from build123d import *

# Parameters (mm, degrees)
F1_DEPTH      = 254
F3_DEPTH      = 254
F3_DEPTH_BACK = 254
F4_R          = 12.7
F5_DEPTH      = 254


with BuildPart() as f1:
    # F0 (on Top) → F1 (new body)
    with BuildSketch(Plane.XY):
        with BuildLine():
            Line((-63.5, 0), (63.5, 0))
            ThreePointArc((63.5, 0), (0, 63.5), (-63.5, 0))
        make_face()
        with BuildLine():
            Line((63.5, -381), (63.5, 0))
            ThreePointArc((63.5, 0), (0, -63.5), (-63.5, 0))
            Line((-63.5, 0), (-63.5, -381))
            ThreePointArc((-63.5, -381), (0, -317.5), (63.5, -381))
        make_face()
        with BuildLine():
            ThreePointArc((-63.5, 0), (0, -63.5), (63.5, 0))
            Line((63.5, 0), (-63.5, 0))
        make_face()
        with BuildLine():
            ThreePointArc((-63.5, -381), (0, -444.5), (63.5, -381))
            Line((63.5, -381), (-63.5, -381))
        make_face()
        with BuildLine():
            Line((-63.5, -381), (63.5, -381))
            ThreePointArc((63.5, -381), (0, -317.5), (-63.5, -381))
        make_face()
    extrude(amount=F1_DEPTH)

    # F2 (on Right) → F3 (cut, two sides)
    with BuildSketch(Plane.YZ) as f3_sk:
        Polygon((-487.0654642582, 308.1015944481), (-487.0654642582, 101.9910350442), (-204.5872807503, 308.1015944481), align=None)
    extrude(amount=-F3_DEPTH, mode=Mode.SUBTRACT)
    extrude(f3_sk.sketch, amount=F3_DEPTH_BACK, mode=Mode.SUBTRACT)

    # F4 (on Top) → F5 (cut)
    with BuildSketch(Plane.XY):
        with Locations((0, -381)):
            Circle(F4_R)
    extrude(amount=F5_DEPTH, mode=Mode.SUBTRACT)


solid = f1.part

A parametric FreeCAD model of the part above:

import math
import FreeCAD as App
import Part
import Sketcher
from FreeCAD import Vector
Q = App.Units.Quantity


def add_polygon(sketch, points):
    """Adds a closed chain of lines whose ends are joined by coincident constraints."""
    first, n = sketch.GeometryCount, len(points)
    for a, b in zip(points, points[1:] + points[:1]):
        sketch.addGeometry(Part.LineSegment(App.Vector(*a, 0), App.Vector(*b, 0)), False)
    for i in range(n):
        sketch.addConstraint(Sketcher.Constraint("Coincident", first + i, 2, first + (i + 1) % n, 1))

doc = App.newDocument("Part")
body = doc.addObject("PartDesign::Body", "Body")

# Sketch on XY plane
sketch1 = doc.addObject("Sketcher::SketchObject", "Sketch")
body.addObject(sketch1)
sketch1.AttachmentSupport = (doc.XY_Plane, [""])
sketch1.MapMode = "FlatFace"
sketch1.addGeometry(Part.ArcOfCircle(Part.Circle(Vector(0, 0, 0), Vector(0, 0, 1), 64), math.radians(0), math.radians(180)), False)
sketch1.addGeometry(Part.LineSegment(Vector(-64, 0, 0), Vector(-64, -381, 0)), False)
sketch1.addGeometry(Part.ArcOfCircle(Part.Circle(Vector(0, -381, 0), Vector(0, 0, 1), 64), math.radians(180), math.radians(360)), False)
sketch1.addGeometry(Part.LineSegment(Vector(64, -381, 0), Vector(64, 0, 0)), False)
sketch1.addConstraint(Sketcher.Constraint("Tangent", 0, 2, 1, 1))
sketch1.addConstraint(Sketcher.Constraint("Tangent", 1, 2, 2, 1))
sketch1.addConstraint(Sketcher.Constraint("Tangent", 2, 2, 3, 1))
sketch1.addConstraint(Sketcher.Constraint("Tangent", 3, 2, 0, 1))
sketch1.addConstraint(Sketcher.Constraint("Vertical", 1))
sketch1.addConstraint(Sketcher.Constraint("Vertical", 3))
sketch1.addConstraint(Sketcher.Constraint("Coincident", 0, 3, -1, 1))
sketch1.addConstraint(Sketcher.Constraint("Radius", 0, Q("2.5 in")))
sketch1.addConstraint(Sketcher.Constraint("DistanceY", 1, 2, 1, 1, Q("15 in")))
pad1 = doc.addObject("PartDesign::Pad", "Pad")
body.addObject(pad1)
pad1.Profile = sketch1
pad1.Length = Q("10 in")

# Sketch on YZ plane
sketch2 = doc.addObject("Sketcher::SketchObject", "Sketch001")
body.addObject(sketch2)
sketch2.AttachmentSupport = (doc.YZ_Plane, [""])
sketch2.MapMode = "FlatFace"
add_polygon(sketch2, [(-487, 308), (-487, 102), (-205, 308)])  # lines 0-2
sketch2.addConstraint(Sketcher.Constraint("Vertical", 0))
sketch2.addConstraint(Sketcher.Constraint("Horizontal", 2))
sketch2.addConstraint(Sketcher.Constraint("DistanceY", 0, 2, 0, 1, 206.110559))
sketch2.addConstraint(Sketcher.Constraint("Distance", 1, 349.67912))
sketch2.addConstraint(Sketcher.Constraint("DistanceX", 1, 2, -1, 1, 204.587281))
sketch2.addConstraint(Sketcher.Constraint("DistanceY", -1, 1, 0, 2, 101.991035))
pocket1 = doc.addObject("PartDesign::Pocket", "Pocket")
body.addObject(pocket1)
pocket1.Profile = sketch2
pocket1.Type = "ThroughAll"
pocket1.Midplane = True

# Sketch on XY plane
sketch3 = doc.addObject("Sketcher::SketchObject", "Sketch002")
body.addObject(sketch3)
sketch3.AttachmentSupport = (doc.XY_Plane, [""])
sketch3.MapMode = "FlatFace"
sketch3.addGeometry(Part.Circle(Vector(0, -381, 0), Vector(0, 0, 1), 13), False)
sketch3.addConstraint(Sketcher.Constraint("PointOnObject", 0, 3, -2))
sketch3.addConstraint(Sketcher.Constraint("Diameter", 0, Q("1 in")))
sketch3.addConstraint(Sketcher.Constraint("DistanceY", 0, 3, -1, 1, Q("15 in")))
pocket2 = doc.addObject("PartDesign::Pocket", "Pocket001")
body.addObject(pocket2)
pocket2.Profile = sketch3
pocket2.Length = Q("10 in")
pocket2.Reversed = True

doc.recompute()
